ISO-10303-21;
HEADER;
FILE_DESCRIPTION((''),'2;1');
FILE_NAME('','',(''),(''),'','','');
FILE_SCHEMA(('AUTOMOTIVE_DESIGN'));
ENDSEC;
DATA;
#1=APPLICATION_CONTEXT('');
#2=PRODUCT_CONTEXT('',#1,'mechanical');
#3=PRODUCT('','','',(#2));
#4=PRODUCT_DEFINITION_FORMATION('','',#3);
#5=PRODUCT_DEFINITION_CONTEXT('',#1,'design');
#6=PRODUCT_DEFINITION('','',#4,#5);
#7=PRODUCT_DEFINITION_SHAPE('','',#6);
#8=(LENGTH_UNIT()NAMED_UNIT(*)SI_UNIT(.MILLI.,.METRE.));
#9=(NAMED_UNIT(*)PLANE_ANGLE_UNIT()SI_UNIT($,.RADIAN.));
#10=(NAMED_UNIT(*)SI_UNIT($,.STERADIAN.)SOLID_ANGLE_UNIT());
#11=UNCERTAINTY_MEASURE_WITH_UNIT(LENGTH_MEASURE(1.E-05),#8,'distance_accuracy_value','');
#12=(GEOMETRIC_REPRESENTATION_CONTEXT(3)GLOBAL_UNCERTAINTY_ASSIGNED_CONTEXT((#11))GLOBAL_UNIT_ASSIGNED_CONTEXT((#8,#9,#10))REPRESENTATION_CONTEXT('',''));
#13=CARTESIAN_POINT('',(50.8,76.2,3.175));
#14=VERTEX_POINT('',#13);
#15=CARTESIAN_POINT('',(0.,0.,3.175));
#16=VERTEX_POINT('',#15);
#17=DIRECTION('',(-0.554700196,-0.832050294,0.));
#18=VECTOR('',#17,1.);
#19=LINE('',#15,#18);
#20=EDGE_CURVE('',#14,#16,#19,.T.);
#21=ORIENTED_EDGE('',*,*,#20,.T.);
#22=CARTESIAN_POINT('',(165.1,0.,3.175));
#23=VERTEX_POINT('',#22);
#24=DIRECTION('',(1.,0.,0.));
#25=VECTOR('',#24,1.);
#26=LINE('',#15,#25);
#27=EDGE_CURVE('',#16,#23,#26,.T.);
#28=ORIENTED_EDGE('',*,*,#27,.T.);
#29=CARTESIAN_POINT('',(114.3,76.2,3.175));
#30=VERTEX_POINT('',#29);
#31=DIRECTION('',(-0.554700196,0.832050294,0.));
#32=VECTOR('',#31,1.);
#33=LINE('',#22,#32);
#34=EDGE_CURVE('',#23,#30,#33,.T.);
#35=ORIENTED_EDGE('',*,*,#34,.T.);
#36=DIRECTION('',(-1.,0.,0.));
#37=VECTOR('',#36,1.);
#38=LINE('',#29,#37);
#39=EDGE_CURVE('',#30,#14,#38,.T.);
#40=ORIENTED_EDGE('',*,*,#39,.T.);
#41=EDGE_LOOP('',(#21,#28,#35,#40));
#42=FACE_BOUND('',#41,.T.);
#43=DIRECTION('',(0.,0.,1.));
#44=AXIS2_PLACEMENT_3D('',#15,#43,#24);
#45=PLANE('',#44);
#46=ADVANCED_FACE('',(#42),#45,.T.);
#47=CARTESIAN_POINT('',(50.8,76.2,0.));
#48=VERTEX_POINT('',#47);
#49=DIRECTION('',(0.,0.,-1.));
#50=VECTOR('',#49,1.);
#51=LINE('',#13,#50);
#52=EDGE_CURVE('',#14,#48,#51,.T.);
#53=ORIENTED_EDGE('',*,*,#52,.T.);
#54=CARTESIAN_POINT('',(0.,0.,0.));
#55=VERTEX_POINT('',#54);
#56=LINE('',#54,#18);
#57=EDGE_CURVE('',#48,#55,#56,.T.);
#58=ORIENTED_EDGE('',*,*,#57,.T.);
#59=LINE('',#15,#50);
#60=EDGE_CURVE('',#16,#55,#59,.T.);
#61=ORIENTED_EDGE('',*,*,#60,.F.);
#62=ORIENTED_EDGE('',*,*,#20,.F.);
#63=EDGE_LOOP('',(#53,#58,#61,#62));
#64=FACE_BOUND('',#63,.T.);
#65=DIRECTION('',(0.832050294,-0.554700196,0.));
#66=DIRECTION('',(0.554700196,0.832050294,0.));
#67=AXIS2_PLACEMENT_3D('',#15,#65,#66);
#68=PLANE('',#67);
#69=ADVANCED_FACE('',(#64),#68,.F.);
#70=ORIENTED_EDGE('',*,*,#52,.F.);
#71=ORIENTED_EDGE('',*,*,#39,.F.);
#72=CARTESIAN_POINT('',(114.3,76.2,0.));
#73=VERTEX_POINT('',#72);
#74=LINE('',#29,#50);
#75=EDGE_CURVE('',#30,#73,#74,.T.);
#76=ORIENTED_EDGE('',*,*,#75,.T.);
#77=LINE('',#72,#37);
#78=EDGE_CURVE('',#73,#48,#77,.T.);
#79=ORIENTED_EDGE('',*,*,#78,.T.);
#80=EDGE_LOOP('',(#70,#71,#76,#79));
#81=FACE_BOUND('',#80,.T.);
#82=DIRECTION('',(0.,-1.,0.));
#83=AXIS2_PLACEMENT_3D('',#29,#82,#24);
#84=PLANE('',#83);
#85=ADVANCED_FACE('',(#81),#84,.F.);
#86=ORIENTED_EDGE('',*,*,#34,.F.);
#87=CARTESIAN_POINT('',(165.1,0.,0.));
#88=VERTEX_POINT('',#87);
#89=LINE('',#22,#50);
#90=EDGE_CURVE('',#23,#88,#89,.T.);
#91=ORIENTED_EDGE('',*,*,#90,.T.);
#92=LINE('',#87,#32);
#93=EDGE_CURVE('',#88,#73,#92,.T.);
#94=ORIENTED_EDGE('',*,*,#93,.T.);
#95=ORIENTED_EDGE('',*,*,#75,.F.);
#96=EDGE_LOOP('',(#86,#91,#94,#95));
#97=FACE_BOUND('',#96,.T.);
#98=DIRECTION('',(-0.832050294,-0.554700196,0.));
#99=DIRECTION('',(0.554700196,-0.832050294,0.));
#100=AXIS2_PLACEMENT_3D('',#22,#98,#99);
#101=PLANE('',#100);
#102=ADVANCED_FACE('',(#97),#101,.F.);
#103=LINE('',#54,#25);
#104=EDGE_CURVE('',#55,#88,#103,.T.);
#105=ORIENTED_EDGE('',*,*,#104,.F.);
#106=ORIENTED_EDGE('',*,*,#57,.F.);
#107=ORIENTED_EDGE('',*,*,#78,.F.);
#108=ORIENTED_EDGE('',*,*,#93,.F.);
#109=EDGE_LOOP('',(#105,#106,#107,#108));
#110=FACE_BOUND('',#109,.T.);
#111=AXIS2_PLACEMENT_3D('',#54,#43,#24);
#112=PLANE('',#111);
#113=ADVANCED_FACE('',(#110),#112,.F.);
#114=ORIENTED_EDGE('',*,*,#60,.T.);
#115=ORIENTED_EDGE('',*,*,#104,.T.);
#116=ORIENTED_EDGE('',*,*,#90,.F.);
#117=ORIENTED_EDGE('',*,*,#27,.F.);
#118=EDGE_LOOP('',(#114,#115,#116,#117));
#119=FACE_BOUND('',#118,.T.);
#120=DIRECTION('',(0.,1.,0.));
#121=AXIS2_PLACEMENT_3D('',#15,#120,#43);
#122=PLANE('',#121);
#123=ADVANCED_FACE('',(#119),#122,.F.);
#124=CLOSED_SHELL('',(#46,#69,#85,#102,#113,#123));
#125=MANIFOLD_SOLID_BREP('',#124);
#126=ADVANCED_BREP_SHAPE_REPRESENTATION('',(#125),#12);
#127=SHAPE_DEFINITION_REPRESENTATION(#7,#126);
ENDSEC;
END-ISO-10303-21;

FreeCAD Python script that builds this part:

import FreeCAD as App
import Part
import Sketcher
Q = App.Units.Quantity


def add_polygon(sketch, points):
    """Adds a closed chain of lines whose ends are joined by coincident constraints."""
    first, n = sketch.GeometryCount, len(points)
    for a, b in zip(points, points[1:] + points[:1]):
        sketch.addGeometry(Part.LineSegment(App.Vector(*a, 0), App.Vector(*b, 0)), False)
    for i in range(n):
        sketch.addConstraint(Sketcher.Constraint("Coincident", first + i, 2, first + (i + 1) % n, 1))

doc = App.newDocument("Part")
body = doc.addObject("PartDesign::Body", "Body")

sketch1 = doc.addObject("Sketcher::SketchObject", "Sketch")
body.addObject(sketch1)
sketch1.AttachmentSupport = (doc.XY_Plane, [""])
sketch1.MapMode = "FlatFace"
add_polygon(sketch1, [(0, 0), (165, 0), (114, 76), (51, 76)])
sketch1.addConstraint([
    Sketcher.Constraint("Horizontal", 0),
    Sketcher.Constraint("Horizontal", 2),
    Sketcher.Constraint("Coincident", 3, 2, -1, 1),
    Sketcher.Constraint("Equal", 1, 3),
    Sketcher.Constraint("DistanceX", 0, 1, 0, 2, Q("6.5 in")),
    Sketcher.Constraint("DistanceX", 2, 2, 2, 1, Q("2.5 in")),
    Sketcher.Constraint("DistanceY", -1, 1, 1, 2, Q("3 in")),
])
pad1 = doc.addObject("PartDesign::Pad", "Pad")
body.addObject(pad1)
pad1.Profile = sketch1
pad1.Length = Q("0.125 in")

doc.recompute()
